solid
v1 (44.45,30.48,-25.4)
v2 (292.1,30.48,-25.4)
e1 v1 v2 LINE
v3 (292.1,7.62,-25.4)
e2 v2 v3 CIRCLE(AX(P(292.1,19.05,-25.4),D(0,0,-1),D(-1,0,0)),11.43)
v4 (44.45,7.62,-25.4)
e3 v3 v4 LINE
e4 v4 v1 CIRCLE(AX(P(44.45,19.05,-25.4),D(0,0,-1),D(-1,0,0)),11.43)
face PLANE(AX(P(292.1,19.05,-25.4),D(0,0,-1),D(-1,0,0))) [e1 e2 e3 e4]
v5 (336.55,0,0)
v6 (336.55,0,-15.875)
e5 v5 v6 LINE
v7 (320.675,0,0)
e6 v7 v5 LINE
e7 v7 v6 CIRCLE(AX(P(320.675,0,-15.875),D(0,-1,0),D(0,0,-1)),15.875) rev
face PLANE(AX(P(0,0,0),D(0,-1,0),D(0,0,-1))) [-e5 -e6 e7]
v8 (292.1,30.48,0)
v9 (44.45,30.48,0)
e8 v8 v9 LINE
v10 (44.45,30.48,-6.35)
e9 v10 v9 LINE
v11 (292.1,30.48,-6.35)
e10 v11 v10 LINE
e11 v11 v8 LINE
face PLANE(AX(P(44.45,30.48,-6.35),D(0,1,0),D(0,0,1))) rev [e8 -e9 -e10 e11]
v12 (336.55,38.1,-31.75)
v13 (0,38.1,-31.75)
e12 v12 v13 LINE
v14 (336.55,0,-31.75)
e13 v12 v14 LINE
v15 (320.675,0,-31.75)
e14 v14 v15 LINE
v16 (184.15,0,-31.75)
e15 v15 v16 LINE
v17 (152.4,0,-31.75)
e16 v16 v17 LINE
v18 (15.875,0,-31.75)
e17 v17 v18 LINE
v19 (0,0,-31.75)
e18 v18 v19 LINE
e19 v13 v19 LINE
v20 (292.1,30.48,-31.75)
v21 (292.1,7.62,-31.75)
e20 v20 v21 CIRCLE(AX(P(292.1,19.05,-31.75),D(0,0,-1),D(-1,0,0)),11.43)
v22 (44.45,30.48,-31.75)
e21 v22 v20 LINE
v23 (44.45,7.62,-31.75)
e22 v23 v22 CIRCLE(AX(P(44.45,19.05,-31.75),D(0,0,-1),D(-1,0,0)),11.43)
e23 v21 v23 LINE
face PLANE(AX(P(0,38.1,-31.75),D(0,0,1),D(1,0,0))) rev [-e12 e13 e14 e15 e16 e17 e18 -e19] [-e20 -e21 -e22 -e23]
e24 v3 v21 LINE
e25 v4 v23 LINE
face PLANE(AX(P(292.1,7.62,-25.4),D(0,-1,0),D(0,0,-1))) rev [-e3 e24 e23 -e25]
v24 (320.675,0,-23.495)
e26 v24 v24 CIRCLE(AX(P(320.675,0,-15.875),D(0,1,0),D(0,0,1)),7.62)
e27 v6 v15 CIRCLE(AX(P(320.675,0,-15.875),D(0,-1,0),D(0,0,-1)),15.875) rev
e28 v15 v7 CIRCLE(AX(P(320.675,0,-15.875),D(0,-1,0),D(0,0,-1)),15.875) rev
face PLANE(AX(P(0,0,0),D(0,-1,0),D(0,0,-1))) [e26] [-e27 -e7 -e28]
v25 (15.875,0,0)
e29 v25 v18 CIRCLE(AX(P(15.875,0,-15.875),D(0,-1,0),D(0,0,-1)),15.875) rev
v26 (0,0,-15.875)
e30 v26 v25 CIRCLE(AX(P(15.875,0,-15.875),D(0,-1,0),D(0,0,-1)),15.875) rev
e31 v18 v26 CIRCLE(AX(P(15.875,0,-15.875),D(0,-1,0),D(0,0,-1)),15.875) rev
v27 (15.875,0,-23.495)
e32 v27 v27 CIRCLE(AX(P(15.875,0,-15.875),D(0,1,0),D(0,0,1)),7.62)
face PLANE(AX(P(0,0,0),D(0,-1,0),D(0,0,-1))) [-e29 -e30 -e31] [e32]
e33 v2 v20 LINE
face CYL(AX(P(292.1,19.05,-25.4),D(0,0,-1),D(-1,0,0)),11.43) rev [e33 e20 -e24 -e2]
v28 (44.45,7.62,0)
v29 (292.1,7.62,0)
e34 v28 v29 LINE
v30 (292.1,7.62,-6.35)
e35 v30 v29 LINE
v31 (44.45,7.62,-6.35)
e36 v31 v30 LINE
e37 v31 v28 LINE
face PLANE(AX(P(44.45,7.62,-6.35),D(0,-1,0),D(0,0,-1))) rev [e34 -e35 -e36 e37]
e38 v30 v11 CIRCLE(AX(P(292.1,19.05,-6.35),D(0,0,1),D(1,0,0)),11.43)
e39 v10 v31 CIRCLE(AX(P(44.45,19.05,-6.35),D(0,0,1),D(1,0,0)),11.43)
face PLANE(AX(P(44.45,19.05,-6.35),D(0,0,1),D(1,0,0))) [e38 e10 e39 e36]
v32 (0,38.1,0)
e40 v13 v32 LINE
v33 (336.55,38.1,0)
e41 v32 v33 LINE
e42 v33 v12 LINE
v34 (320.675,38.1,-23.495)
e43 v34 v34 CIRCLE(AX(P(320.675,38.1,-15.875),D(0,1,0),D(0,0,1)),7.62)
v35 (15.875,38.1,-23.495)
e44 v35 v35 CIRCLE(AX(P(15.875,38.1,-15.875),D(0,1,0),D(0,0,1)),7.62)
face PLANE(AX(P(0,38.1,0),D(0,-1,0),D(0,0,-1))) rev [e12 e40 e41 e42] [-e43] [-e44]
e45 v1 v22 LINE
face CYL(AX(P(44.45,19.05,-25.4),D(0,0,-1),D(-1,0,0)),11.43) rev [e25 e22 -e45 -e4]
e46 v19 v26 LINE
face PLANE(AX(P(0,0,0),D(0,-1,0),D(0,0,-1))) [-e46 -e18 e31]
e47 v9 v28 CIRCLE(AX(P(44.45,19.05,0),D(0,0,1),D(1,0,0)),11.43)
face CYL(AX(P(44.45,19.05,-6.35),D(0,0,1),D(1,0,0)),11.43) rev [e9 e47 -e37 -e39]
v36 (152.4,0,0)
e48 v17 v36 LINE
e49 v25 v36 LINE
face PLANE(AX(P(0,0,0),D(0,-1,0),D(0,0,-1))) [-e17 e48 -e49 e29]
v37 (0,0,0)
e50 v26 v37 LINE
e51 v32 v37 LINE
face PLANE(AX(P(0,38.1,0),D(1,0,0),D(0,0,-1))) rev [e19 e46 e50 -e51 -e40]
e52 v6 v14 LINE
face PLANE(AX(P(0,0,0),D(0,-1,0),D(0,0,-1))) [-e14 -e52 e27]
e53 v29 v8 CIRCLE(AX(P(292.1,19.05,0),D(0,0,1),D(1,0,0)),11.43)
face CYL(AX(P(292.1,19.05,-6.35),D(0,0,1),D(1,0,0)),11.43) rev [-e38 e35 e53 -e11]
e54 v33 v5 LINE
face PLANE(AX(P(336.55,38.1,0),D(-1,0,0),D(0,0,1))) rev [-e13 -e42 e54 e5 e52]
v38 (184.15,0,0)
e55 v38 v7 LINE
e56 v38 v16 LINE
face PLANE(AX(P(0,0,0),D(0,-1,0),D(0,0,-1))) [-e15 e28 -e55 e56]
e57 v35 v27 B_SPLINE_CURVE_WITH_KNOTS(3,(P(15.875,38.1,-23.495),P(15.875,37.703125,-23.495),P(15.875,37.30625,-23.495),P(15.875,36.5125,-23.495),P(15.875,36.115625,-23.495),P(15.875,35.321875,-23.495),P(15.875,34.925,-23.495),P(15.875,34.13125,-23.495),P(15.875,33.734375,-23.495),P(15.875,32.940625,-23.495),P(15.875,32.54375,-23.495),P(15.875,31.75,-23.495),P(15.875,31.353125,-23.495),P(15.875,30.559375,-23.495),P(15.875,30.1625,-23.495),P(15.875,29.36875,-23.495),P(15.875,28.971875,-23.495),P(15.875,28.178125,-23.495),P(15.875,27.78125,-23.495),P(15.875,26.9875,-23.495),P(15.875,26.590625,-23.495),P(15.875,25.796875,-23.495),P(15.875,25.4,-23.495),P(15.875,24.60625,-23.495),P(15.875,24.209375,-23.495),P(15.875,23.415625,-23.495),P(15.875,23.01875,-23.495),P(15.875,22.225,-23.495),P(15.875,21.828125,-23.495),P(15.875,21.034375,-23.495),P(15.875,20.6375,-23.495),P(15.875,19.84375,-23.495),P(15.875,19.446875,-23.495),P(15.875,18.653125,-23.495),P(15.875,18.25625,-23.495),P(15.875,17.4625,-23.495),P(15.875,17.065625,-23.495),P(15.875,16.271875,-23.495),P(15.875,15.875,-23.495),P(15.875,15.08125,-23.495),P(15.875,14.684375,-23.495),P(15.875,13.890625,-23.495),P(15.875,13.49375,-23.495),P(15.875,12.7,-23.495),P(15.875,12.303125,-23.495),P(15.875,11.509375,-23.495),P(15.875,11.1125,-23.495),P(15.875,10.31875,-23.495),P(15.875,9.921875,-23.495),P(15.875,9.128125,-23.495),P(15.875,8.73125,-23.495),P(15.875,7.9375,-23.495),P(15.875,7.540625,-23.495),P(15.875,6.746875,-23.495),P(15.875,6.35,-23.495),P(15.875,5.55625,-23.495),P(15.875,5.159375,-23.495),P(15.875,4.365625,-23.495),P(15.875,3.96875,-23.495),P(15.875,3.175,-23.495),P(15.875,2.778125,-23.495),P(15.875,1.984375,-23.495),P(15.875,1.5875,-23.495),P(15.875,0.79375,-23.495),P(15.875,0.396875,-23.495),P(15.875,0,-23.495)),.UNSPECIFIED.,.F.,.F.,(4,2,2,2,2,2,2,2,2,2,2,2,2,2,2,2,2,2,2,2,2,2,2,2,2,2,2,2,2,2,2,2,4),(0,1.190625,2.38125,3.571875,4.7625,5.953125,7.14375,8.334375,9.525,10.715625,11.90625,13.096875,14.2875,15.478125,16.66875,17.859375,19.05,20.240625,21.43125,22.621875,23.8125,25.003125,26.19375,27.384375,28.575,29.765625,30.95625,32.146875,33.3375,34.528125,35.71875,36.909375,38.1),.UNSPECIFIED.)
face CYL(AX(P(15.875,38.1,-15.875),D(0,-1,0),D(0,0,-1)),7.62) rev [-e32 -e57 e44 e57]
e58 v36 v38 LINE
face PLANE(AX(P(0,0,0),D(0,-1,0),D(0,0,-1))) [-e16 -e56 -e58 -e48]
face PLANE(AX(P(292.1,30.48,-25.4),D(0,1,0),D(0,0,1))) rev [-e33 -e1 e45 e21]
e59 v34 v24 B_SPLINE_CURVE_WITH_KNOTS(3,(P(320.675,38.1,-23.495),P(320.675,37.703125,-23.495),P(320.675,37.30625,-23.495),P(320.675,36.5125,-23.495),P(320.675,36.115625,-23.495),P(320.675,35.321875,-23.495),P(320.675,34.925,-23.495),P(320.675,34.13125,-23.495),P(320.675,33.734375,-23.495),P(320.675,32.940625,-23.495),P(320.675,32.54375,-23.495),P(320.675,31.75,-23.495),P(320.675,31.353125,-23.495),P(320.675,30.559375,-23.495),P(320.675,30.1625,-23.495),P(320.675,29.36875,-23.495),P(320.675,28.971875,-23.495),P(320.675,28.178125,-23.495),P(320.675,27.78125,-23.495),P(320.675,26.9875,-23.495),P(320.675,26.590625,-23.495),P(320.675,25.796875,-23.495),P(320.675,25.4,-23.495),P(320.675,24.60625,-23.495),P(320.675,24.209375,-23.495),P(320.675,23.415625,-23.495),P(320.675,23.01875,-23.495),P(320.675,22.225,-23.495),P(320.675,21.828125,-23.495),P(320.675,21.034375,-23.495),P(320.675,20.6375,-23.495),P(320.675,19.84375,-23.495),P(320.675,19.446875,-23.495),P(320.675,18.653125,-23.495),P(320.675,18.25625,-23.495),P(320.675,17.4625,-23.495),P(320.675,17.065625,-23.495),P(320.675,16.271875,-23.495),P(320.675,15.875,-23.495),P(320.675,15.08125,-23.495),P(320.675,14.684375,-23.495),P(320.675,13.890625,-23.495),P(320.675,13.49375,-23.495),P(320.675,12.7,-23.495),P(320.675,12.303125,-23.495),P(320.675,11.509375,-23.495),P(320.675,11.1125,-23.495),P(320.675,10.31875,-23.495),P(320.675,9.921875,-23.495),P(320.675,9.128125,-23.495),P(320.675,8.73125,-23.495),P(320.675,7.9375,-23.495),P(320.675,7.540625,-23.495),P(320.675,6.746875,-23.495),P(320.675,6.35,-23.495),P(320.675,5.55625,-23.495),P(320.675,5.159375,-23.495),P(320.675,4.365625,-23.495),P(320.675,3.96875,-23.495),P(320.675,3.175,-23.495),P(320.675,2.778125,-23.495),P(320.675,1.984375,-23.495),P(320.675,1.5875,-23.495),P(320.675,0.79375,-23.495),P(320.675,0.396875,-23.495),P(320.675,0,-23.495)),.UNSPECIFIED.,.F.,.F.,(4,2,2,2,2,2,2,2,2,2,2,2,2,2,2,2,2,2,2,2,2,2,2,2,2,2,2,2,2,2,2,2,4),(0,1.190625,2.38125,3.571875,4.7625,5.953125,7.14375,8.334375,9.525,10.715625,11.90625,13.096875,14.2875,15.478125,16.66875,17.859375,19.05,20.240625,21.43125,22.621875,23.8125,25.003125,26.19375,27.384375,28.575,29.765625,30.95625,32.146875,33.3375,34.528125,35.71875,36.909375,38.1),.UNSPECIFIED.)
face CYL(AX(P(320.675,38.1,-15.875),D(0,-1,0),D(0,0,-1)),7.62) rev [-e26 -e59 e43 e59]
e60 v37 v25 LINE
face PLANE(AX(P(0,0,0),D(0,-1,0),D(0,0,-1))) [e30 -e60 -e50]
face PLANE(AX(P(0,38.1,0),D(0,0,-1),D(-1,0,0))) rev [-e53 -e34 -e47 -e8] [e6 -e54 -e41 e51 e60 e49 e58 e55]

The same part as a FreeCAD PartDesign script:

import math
import FreeCAD as App
import Part
import Sketcher
Q = App.Units.Quantity


def add_polygon(sketch, points):
    """Adds a closed chain of lines whose ends are joined by coincident constraints."""
    first, n = sketch.GeometryCount, len(points)
    for a, b in zip(points, points[1:] + points[:1]):
        sketch.addGeometry(Part.LineSegment(App.Vector(*a, 0), App.Vector(*b, 0)), False)
    for i in range(n):
        sketch.addConstraint(Sketcher.Constraint("Coincident", first + i, 2, first + (i + 1) % n, 1))

doc = App.newDocument("Part")
body = doc.addObject("PartDesign::Body", "Body")

# Sketch on XZ plane
sketch1 = body.newObject("Sketcher::SketchObject", "Sketch")
sketch1.AttachmentSupport = (doc.getObject("XZ_Plane"), [""])
sketch1.MapMode = "FlatFace"
add_polygon(sketch1, [(0, -32), (0, 0), (337, 0), (337, -32)])  # lines 0-3
sketch1.addGeometry(Part.Circle(App.Vector(16, -16, 0), App.Vector(0, 0, 1), 8), False)  # 4
sketch1.addGeometry(Part.Circle(App.Vector(321, -16, 0), App.Vector(0, 0, 1), 8), False)  # 5
sketch1.addConstraint([
    Sketcher.Constraint("Vertical", 0),
    Sketcher.Constraint("Horizontal", 1),
    Sketcher.Constraint("Vertical", 2),
    Sketcher.Constraint("Horizontal", 3),
    Sketcher.Constraint("Coincident", 0, 2, -1, 1),
    Sketcher.Constraint("Equal", 4, 5),
    Sketcher.Constraint("Horizontal", 4, 3, 5, 3),
    Sketcher.Constraint("Diameter", 4, Q("0.6 in")),
    Sketcher.Constraint("DistanceX", 4, 3, 5, 3, Q("12 in")),
    Sketcher.Constraint("DistanceX", 1, 1, 1, 2, Q("13.25 in")),
    Sketcher.Constraint("DistanceY", 0, 1, 0, 2, Q("1.25 in")),
    Sketcher.Constraint("DistanceX", -1, 1, 4, 3, Q("0.625 in")),
    Sketcher.Constraint("DistanceY", 4, 3, -1, 1, Q("0.625 in")),
])
pad1 = body.newObject("PartDesign::Pad", "Pad")
pad1.Profile = sketch1
pad1.Length = Q("1.5 in")
pad1.Reversed = True

# Sketch on XY plane
sketch2 = body.newObject("Sketcher::SketchObject", "Sketch001")
sketch2.AttachmentSupport = (doc.getObject("XY_Plane"), [""])
sketch2.MapMode = "FlatFace"
sketch2.addGeometry([
    Part.LineSegment(App.Vector(292, 30, 0), App.Vector(44, 30, 0)),
    Part.ArcOfCircle(Part.Circle(App.Vector(44, 19, 0), App.Vector(0, 0, 1), 11), math.radians(90), math.radians(270)),
    Part.LineSegment(App.Vector(44, 8, 0), App.Vector(292, 8, 0)),
    Part.ArcOfCircle(Part.Circle(App.Vector(292, 19, 0), App.Vector(0, 0, 1), 11), math.radians(-90), math.radians(90)),
], False)
sketch2.addConstraint([
    Sketcher.Constraint("Tangent", 0, 2, 1, 1),
    Sketcher.Constraint("Tangent", 1, 2, 2, 1),
    Sketcher.Constraint("Tangent", 2, 2, 3, 1),
    Sketcher.Constraint("Tangent", 3, 2, 0, 1),
    Sketcher.Constraint("Horizontal", 0),
    Sketcher.Constraint("Horizontal", 2),
    Sketcher.Constraint("Radius", 1, Q("0.45 in")),
    Sketcher.Constraint("DistanceX", 0, 2, 0, 1, Q("9.75 in")),
    Sketcher.Constraint("DistanceX", -1, 1, 3, 3, Q("11.5 in")),
    Sketcher.Constraint("DistanceY", -1, 1, 0, 2, Q("1.2 in")),
])
pocket1 = body.newObject("PartDesign::Pocket", "Pocket")
pocket1.Profile = sketch2
pocket1.Length = Q("0.25 in")

# Sketch on XY plane
sketch3 = body.newObject("Sketcher::SketchObject", "Sketch002")
sketch3.AttachmentSupport = (doc.getObject("XY_Plane"), [""])
sketch3.MapMode = "FlatFace"
sketch3.AttachmentOffset = App.Placement(App.Vector(0, 0, -1 * 25.4), App.Rotation())
sketch3.addGeometry([
    Part.LineSegment(App.Vector(44, 30, 0), App.Vector(292, 30, 0)),
    Part.ArcOfCircle(Part.Circle(App.Vector(292, 19, 0), App.Vector(0, 0, 1), 11), math.radians(-90), math.radians(90)),
    Part.LineSegment(App.Vector(292, 8, 0), App.Vector(44, 8, 0)),
    Part.ArcOfCircle(Part.Circle(App.Vector(44, 19, 0), App.Vector(0, 0, 1), 11), math.radians(90), math.radians(270)),
], False)
sketch3.addConstraint([
    Sketcher.Constraint("Tangent", 0, 2, 1, 2),
    Sketcher.Constraint("Tangent", 1, 1, 2, 1),
    Sketcher.Constraint("Tangent", 2, 2, 3, 2),
    Sketcher.Constraint("Tangent", 3, 1, 0, 1),
    Sketcher.Constraint("Horizontal", 0),
    Sketcher.Constraint("Horizontal", 2),
    Sketcher.Constraint("Radius", 1, Q("0.45 in")),
    Sketcher.Constraint("DistanceX", 0, 1, 0, 2, Q("9.75 in")),
    Sketcher.Constraint("DistanceX", -1, 1, 1, 3, Q("11.5 in")),
    Sketcher.Constraint("DistanceY", -1, 1, 0, 2, Q("1.2 in")),
])
pocket2 = body.newObject("PartDesign::Pocket", "Pocket001")
pocket2.Profile = sketch3
pocket2.Length = Q("0.25 in")

doc.recompute()
